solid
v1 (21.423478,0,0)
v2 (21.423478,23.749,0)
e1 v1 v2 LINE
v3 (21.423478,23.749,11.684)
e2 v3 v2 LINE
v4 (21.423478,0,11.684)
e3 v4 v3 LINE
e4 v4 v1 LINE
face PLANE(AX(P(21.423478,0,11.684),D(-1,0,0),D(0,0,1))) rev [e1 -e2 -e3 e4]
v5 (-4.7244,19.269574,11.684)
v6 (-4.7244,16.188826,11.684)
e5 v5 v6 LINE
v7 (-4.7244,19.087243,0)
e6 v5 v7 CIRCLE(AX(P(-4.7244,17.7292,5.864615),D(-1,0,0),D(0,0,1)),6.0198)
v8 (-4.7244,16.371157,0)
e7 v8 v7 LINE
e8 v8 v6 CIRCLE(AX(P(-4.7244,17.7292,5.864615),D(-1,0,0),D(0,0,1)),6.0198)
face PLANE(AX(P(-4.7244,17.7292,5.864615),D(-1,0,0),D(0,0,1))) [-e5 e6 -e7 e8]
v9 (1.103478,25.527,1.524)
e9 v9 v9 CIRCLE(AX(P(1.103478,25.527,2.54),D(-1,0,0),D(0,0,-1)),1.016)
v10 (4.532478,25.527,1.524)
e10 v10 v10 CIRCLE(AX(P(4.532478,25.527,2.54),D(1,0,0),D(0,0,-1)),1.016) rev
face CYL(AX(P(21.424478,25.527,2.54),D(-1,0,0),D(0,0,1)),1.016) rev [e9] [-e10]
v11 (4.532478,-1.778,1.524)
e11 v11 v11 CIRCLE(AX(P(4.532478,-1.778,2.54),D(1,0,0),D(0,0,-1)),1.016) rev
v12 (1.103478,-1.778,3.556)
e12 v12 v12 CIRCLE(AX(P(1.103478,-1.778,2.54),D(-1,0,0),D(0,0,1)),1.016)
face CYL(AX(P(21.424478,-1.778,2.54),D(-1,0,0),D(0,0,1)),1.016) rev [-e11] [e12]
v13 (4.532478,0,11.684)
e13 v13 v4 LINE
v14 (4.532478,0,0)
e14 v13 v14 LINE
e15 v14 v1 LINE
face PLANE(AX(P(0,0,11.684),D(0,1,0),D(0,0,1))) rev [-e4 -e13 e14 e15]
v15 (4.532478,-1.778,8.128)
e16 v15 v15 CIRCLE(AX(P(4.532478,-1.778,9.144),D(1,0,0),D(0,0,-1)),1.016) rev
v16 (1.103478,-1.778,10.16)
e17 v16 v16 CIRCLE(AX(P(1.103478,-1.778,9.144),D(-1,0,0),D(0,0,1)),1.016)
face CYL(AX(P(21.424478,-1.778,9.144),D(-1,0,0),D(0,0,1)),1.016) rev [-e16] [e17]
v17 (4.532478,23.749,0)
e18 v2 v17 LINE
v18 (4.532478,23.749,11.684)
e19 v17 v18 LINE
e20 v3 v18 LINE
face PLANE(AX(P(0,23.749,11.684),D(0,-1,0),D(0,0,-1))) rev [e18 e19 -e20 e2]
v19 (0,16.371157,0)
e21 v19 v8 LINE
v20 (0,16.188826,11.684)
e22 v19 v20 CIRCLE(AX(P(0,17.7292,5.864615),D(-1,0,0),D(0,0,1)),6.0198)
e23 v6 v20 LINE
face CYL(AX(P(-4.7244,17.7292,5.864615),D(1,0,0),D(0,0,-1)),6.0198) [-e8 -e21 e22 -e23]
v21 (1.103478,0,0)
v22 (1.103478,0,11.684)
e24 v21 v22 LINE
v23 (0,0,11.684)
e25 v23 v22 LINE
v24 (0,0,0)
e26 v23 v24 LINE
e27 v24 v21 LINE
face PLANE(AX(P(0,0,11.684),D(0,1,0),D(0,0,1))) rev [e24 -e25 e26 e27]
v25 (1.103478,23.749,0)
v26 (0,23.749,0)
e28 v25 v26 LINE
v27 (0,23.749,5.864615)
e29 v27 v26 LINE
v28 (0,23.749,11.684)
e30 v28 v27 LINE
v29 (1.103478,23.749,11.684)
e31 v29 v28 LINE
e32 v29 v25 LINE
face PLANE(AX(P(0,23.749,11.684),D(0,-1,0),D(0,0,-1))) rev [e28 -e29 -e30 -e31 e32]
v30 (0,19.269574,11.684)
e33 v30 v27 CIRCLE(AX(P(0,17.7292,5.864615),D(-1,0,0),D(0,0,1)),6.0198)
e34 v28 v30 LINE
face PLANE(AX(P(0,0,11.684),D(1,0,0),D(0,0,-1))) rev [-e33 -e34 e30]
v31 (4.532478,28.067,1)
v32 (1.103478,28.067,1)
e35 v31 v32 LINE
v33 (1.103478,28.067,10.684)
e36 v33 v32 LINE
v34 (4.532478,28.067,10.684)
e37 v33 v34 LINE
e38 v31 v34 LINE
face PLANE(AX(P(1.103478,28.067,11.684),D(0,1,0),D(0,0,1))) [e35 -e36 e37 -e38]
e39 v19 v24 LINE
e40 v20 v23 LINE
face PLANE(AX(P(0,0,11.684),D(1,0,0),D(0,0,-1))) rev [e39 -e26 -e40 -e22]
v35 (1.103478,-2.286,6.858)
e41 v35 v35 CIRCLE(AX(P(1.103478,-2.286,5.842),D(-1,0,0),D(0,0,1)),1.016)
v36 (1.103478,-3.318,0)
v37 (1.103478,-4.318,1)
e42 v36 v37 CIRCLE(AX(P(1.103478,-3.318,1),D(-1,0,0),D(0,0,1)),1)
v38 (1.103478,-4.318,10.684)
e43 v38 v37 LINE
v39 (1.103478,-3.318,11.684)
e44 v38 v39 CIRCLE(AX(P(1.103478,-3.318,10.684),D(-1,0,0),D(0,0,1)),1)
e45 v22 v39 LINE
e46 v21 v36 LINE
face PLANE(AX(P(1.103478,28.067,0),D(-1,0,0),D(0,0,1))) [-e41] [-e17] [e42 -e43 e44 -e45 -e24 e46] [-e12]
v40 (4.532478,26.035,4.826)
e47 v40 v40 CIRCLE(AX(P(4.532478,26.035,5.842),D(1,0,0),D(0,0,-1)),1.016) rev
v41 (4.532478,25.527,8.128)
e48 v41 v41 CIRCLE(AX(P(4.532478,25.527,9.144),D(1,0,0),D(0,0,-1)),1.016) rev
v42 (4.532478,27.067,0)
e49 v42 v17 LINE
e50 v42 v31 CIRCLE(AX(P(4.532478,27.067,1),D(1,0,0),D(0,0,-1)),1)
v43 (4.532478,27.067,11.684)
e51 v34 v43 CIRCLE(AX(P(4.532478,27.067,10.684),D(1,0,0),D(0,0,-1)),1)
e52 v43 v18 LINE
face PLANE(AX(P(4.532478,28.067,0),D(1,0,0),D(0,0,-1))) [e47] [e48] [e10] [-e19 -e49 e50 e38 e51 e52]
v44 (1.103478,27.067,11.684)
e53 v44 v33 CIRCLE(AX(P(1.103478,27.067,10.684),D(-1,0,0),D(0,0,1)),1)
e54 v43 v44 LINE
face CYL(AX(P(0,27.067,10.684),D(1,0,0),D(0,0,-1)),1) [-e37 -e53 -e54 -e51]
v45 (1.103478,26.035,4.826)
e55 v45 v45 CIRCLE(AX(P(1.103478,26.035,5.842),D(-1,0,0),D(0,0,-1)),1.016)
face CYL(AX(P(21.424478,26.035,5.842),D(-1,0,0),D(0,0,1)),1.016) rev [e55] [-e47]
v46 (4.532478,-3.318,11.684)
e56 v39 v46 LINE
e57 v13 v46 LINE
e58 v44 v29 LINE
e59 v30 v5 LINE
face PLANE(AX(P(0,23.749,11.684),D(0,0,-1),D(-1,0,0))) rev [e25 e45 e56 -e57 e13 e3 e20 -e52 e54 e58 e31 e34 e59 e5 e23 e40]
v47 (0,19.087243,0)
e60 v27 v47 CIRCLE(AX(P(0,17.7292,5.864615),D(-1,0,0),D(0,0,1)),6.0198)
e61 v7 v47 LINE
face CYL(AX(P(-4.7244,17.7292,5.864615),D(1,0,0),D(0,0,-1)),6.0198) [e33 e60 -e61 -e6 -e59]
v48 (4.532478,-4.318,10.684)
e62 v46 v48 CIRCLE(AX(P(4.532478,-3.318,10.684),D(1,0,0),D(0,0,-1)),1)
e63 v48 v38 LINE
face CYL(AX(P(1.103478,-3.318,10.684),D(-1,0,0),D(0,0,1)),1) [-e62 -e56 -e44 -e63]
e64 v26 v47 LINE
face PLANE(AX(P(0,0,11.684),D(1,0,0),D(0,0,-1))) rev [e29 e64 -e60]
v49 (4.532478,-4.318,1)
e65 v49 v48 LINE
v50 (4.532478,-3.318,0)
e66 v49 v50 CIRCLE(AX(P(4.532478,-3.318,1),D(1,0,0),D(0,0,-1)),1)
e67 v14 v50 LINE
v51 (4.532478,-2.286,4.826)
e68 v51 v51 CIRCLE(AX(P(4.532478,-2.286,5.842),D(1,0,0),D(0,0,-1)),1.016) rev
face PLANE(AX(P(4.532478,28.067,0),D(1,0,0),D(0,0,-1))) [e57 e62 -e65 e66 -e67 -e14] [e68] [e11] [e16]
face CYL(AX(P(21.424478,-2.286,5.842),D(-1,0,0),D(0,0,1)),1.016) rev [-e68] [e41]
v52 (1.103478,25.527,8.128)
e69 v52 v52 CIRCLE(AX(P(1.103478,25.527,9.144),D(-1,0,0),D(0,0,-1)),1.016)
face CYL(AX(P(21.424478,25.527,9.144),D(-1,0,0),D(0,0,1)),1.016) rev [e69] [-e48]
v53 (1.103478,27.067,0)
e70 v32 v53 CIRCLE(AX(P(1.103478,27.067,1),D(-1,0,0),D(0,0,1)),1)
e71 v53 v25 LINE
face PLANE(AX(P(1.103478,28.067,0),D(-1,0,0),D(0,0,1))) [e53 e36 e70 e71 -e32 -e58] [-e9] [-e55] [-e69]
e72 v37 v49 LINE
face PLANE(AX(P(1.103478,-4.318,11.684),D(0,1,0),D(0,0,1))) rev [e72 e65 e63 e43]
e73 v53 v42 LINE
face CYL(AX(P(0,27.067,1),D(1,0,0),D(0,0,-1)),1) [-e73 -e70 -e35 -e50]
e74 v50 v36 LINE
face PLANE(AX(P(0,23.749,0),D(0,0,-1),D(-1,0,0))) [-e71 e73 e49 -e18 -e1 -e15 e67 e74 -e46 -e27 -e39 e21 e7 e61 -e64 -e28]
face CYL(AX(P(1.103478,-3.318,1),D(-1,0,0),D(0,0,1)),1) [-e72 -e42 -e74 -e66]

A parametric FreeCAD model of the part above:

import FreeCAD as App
import Part
import Sketcher
from FreeCAD import Vector
Q = App.Units.Quantity


def edges_at(feature, points):
    """Names of the edges that pass closest to the given points."""
    edges = feature.Shape.Edges
    near = lambda p: min(range(len(edges)), key=lambda i: edges[i].distToShape(Part.Vertex(*p))[0])
    return sorted({f"Edge{near(p) + 1}" for p in points})


def add_polygon(sketch, points):
    """Adds a closed chain of lines whose ends are joined by coincident constraints."""
    first, n = sketch.GeometryCount, len(points)
    for a, b in zip(points, points[1:] + points[:1]):
        sketch.addGeometry(Part.LineSegment(App.Vector(*a, 0), App.Vector(*b, 0)), False)
    for i in range(n):
        sketch.addConstraint(Sketcher.Constraint("Coincident", first + i, 2, first + (i + 1) % n, 1))

doc = App.newDocument("Part")
body = doc.addObject("PartDesign::Body", "Body")

# Sketch on XY plane
sketch1 = body.newObject("Sketcher::SketchObject", "Sketch")
sketch1.AttachmentSupport = (doc.getObject("XY_Plane"), [""])
sketch1.MapMode = "FlatFace"
add_polygon(sketch1, [(0, 24), (0, 0), (21, 0), (21, 24)])  # lines 0-3
sketch1.addConstraint([
    Sketcher.Constraint("Vertical", 0),
    Sketcher.Constraint("Horizontal", 1),
    Sketcher.Constraint("Vertical", 2),
    Sketcher.Constraint("Horizontal", 3),
    Sketcher.Constraint("Coincident", 0, 2, -1, 1),
    Sketcher.Constraint("DistanceY", 0, 2, 0, 1, Q("0.935 in")),
    Sketcher.Constraint("DistanceX", 1, 1, 1, 2, 21.423478),
])
pad1 = body.newObject("PartDesign::Pad", "Pad")
pad1.Profile = sketch1
pad1.Length = Q("0.46 in")

# Sketch on XZ plane
sketch2 = body.newObject("Sketcher::SketchObject", "Sketch001")
sketch2.AttachmentSupport = (doc.getObject("XZ_Plane"), [""])
sketch2.MapMode = "FlatFace"
add_polygon(sketch2, [(1.1, 11.7), (1.1, 0), (4.5, 0), (4.5, 11.7)])  # lines 0-3
sketch2.addConstraint([
    Sketcher.Constraint("Vertical", 0),
    Sketcher.Constraint("Horizontal", 1),
    Sketcher.Constraint("Vertical", 2),
    Sketcher.Constraint("Horizontal", 3),
    Sketcher.Constraint("PointOnObject", 0, 2, -1),
    Sketcher.Constraint("DistanceY", 0, 2, 0, 1, Q("0.46 in")),
    Sketcher.Constraint("DistanceX", 1, 1, 1, 2, Q("0.135 in")),
    Sketcher.Constraint("DistanceX", -1, 1, 0, 2, 1.103478),
])
pad2 = body.newObject("PartDesign::Pad", "Pad001")
pad2.Profile = sketch2
pad2.Type = "TwoLengths"
pad2.Length = Q("0.17 in")
pad2.Length2 = Q("1.105 in")

# Sketch on YZ plane
sketch3 = body.newObject("Sketcher::SketchObject", "Sketch002")
sketch3.AttachmentSupport = (doc.getObject("YZ_Plane"), [""])
sketch3.MapMode = "FlatFace"
sketch3.AttachmentOffset = App.Placement(Vector(0, 0, 1.103478), App.Rotation())
sketch3.addGeometry(Part.Circle(Vector(-1.8, 2.5, 0), Vector(0, 0, 1), 1), False)
sketch3.addConstraint([
    Sketcher.Constraint("Diameter", 0, Q("0.08 in")),
    Sketcher.Constraint("DistanceY", -1, 1, 0, 3, Q("0.1 in")),
    Sketcher.Constraint("DistanceX", 0, 3, -1, 1, Q("0.07 in")),
])
pocket1 = body.newObject("PartDesign::Pocket", "Pocket")
pocket1.Profile = sketch3
pocket1.Type = "UpToFirst"
pocket1.Reversed = True

# Sketch on YZ plane
sketch4 = body.newObject("Sketcher::SketchObject", "Sketch003")
sketch4.AttachmentSupport = (doc.getObject("YZ_Plane"), [""])
sketch4.MapMode = "FlatFace"
sketch4.AttachmentOffset = App.Placement(Vector(0, 0, 1.103478), App.Rotation())
sketch4.addGeometry(Part.Circle(Vector(-2.3, 5.8, 0), Vector(0, 0, 1), 1), False)
sketch4.addConstraint([
    Sketcher.Constraint("Diameter", 0, Q("0.08 in")),
    Sketcher.Constraint("DistanceX", 0, 3, -1, 1, Q("0.09 in")),
    Sketcher.Constraint("DistanceY", -1, 1, 0, 3, Q("0.23 in")),
])
pocket2 = body.newObject("PartDesign::Pocket", "Pocket001")
pocket2.Profile = sketch4
pocket2.Type = "UpToFirst"
pocket2.Reversed = True

# Sketch on YZ plane
sketch5 = body.newObject("Sketcher::SketchObject", "Sketch004")
sketch5.AttachmentSupport = (doc.getObject("YZ_Plane"), [""])
sketch5.MapMode = "FlatFace"
sketch5.AttachmentOffset = App.Placement(Vector(0, 0, 1.103478), App.Rotation())
sketch5.addGeometry(Part.Circle(Vector(-1.8, 9.1, 0), Vector(0, 0, 1), 1), False)
sketch5.addConstraint([
    Sketcher.Constraint("Diameter", 0, Q("0.08 in")),
    Sketcher.Constraint("DistanceX", 0, 3, -1, 1, Q("0.07 in")),
    Sketcher.Constraint("DistanceY", -1, 1, 0, 3, Q("0.36 in")),
])
pocket3 = body.newObject("PartDesign::Pocket", "Pocket002")
pocket3.Profile = sketch5
pocket3.Type = "UpToFirst"
pocket3.Reversed = True

# Sketch on YZ plane
sketch6 = body.newObject("Sketcher::SketchObject", "Sketch005")
sketch6.AttachmentSupport = (doc.getObject("YZ_Plane"), [""])
sketch6.MapMode = "FlatFace"
sketch6.AttachmentOffset = App.Placement(Vector(0, 0, 1.103478), App.Rotation())
sketch6.addGeometry(Part.Circle(Vector(25.5, 9.1, 0), Vector(0, 0, 1), 1), False)
sketch6.addConstraint([
    Sketcher.Constraint("Diameter", 0, Q("0.08 in")),
    Sketcher.Constraint("DistanceY", -1, 1, 0, 3, Q("0.36 in")),
    Sketcher.Constraint("DistanceX", -1, 1, 0, 3, Q("1.005 in")),
])
pocket4 = body.newObject("PartDesign::Pocket", "Pocket003")
pocket4.Profile = sketch6
pocket4.Type = "UpToFirst"
pocket4.Reversed = True

# Sketch on YZ plane
sketch7 = body.newObject("Sketcher::SketchObject", "Sketch006")
sketch7.AttachmentSupport = (doc.getObject("YZ_Plane"), [""])
sketch7.MapMode = "FlatFace"
sketch7.AttachmentOffset = App.Placement(Vector(0, 0, 1.103478), App.Rotation())
sketch7.addGeometry(Part.Circle(Vector(26, 5.8, 0), Vector(0, 0, 1), 1), False)
sketch7.addConstraint([
    Sketcher.Constraint("Diameter", 0, Q("0.08 in")),
    Sketcher.Constraint("DistanceY", -1, 1, 0, 3, Q("0.23 in")),
    Sketcher.Constraint("DistanceX", -1, 1, 0, 3, Q("1.025 in")),
])
pocket5 = body.newObject("PartDesign::Pocket", "Pocket004")
pocket5.Profile = sketch7
pocket5.Type = "UpToFirst"
pocket5.Reversed = True

# Sketch on YZ plane
sketch8 = body.newObject("Sketcher::SketchObject", "Sketch007")
sketch8.AttachmentSupport = (doc.getObject("YZ_Plane"), [""])
sketch8.MapMode = "FlatFace"
sketch8.AttachmentOffset = App.Placement(Vector(0, 0, 1.103478), App.Rotation())
sketch8.addGeometry(Part.Circle(Vector(25.5, 2.5, 0), Vector(0, 0, 1), 1), False)
sketch8.addConstraint([
    Sketcher.Constraint("Diameter", 0, Q("0.08 in")),
    Sketcher.Constraint("DistanceY", -1, 1, 0, 3, Q("0.1 in")),
    Sketcher.Constraint("DistanceX", -1, 1, 0, 3, Q("1.005 in")),
])
pocket6 = body.newObject("PartDesign::Pocket", "Pocket005")
pocket6.Profile = sketch8
pocket6.Type = "UpToFirst"
pocket6.Reversed = True
doc.recompute()

fillet = body.newObject("PartDesign::Fillet", "Fillet")
fillet.Base = (pocket6, edges_at(pocket6, [
    (2.818, 28.067, 11.684),
    (2.818, 28.067, 0),
    (2.818, -4.318, 0),
    (2.818, -4.318, 11.684),
]))
fillet.Radius = 1

# Sketch on YZ plane
sketch9 = body.newObject("Sketcher::SketchObject", "Sketch008")
sketch9.AttachmentSupport = (doc.getObject("YZ_Plane"), [""])
sketch9.MapMode = "FlatFace"
sketch9.addGeometry(Part.Circle(Vector(18, 6, 0), Vector(0, 0, 1), 6), False)
sketch9.addConstraint([
    Sketcher.Constraint("Diameter", 0, Q("0.474 in")),
    Sketcher.Constraint("DistanceX", -1, 1, 0, 3, Q("0.698 in")),
    Sketcher.Constraint("DistanceY", -1, 1, 0, 3, 5.864615),
])
pad3 = body.newObject("PartDesign::Pad", "Pad002")
pad3.Profile = sketch9
pad3.Length = Q("0.186 in")
pad3.Reversed = True

# Sketch on YZ plane
sketch10 = body.newObject("Sketcher::SketchObject", "Sketch009")
sketch10.AttachmentSupport = (doc.getObject("YZ_Plane"), [""])
sketch10.MapMode = "FlatFace"
add_polygon(sketch10, [(23.7, 11.7), (0, 11.7), (0, 12.7), (23.7, 12.7)])  # lines 0-3
add_polygon(sketch10, [(23.7, -1), (0, -1), (0, 0), (23.7, 0)])  # lines 4-7
sketch10.addConstraint([
    Sketcher.Constraint("Horizontal", 0),
    Sketcher.Constraint("Vertical", 1),
    Sketcher.Constraint("Horizontal", 2),
    Sketcher.Constraint("Vertical", 3),
    Sketcher.Constraint("Horizontal", 4),
    Sketcher.Constraint("Vertical", 5),
    Sketcher.Constraint("Horizontal", 6),
    Sketcher.Constraint("Vertical", 7),
    Sketcher.Constraint("Coincident", 5, 2, -1, 1),
    Sketcher.Constraint("PointOnObject", 0, 2, -2),
    Sketcher.Constraint("Vertical", 3, 2, 6, 2),
    Sketcher.Constraint("Equal", 3, 5),
    Sketcher.Constraint("DistanceX", 0, 2, 0, 1, Q("0.935 in")),
    Sketcher.Constraint("DistanceY", -1, 1, 0, 2, Q("0.46 in")),
    Sketcher.Constraint("DistanceY", 1, 1, 1, 2, 1.0),
])
pocket7 = body.newObject("PartDesign::Pocket", "Pocket006")
pocket7.Profile = sketch10
pocket7.Length = Q("0.186 in")

doc.recompute()
